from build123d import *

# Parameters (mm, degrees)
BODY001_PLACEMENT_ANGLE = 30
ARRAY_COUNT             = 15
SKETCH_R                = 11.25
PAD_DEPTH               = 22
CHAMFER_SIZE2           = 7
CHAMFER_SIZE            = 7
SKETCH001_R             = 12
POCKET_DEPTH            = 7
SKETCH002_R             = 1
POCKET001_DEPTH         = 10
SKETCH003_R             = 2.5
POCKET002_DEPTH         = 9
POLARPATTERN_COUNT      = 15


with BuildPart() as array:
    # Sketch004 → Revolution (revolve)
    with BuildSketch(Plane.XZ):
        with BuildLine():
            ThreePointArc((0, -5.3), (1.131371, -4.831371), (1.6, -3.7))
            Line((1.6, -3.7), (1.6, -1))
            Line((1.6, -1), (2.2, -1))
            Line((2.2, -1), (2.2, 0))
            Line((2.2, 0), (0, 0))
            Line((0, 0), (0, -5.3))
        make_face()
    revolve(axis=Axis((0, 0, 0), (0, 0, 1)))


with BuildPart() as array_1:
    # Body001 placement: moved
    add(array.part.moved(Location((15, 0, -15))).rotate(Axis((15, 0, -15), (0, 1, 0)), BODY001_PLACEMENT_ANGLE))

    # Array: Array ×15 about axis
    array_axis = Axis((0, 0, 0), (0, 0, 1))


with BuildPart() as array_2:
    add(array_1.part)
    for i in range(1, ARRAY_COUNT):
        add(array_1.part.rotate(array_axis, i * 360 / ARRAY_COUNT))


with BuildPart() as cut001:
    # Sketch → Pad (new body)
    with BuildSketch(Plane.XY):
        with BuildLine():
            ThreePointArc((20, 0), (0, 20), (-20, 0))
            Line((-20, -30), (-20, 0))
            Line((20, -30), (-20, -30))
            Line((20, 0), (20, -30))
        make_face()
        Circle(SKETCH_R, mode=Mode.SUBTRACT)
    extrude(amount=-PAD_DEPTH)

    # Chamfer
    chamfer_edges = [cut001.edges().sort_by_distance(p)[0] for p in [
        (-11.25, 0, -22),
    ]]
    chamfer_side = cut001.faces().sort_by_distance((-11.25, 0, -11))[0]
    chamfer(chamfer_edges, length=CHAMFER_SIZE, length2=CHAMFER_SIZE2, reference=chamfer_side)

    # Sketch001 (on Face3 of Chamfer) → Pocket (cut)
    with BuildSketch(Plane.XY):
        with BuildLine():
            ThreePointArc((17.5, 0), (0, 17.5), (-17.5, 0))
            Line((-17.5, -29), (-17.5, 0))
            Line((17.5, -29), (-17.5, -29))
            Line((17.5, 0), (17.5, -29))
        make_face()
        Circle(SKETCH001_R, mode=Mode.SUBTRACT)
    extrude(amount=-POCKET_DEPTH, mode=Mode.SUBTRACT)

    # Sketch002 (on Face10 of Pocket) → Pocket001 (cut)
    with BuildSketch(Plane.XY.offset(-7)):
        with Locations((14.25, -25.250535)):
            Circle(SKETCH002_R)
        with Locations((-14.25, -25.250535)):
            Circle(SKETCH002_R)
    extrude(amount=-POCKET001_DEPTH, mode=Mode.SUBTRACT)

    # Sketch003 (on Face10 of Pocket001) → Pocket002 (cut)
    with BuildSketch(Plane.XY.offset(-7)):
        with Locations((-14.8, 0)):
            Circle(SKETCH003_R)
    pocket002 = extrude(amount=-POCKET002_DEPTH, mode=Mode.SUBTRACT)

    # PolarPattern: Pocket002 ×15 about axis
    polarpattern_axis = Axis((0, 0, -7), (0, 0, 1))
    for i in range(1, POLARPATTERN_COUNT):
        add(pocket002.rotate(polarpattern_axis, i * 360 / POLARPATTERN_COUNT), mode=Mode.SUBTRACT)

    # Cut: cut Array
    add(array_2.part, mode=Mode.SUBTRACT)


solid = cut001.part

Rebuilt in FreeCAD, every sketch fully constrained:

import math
import FreeCAD as App
import Part
import Sketcher
Q = App.Units.Quantity


def edges_at(feature, points):
    """Names of the edges that pass closest to the given points."""
    edges = feature.Shape.Edges
    near = lambda p: min(range(len(edges)), key=lambda i: edges[i].distToShape(Part.Vertex(*p))[0])
    return sorted({f"Edge{near(p) + 1}" for p in points})

doc = App.newDocument("Part")
params = doc.addObject("Spreadsheet::Sheet", "Params")
for row, (alias, value) in enumerate([
    ("sketch1_radius", "1.599999 mm"),
    ("sketch1_height", "1 mm"),
    ("sketch1_width", "0.6 mm"),
    ("sketch1_height2", "2.7 mm"),
    ("revolution_angle", "360 deg"),
    ("sketch2_radius", "20 mm"),
    ("sketch2_diameter", "22.5 mm"),
    ("sketch2_height", "30 mm"),
    ("pad1_length", "22 mm"),
    ("chamfer_size", "7 mm"),
    ("chamfer_size2", "7 mm"),
    ("sketch3_diameter", "24 mm"),
    ("sketch3_radius", "17.5 mm"),
    ("sketch3_height", "29 mm"),
    ("pocket1_length", "7 mm"),
    ("sketch4_diameter", "2 mm"),
    ("pocket2_length", "10 mm"),
    ("sketch5_diameter", "5 mm"),
    ("pocket3_length", "9 mm"),
], start=1):
    params.set(f"A{row}", alias)
    params.set(f"B{row}", "=" + value)
    params.setAlias(f"B{row}", alias)

body = doc.addObject("PartDesign::Body", "Body")

# Sketch on XZ plane
sketch1 = body.newObject("Sketcher::SketchObject", "Sketch")
sketch1.AttachmentSupport = (doc.getObject("XZ_Plane"), [""])
sketch1.MapMode = "FlatFace"
sketch1.addGeometry([
    Part.ArcOfCircle(Part.Circle(App.Vector(0, -3.7, 0), App.Vector(0, 0, 1), 1.6), math.radians(-90), math.radians(0)),  # 0
    Part.LineSegment(App.Vector(1.6, -3.7, 0), App.Vector(1.6, -1, 0)),  # 1
    Part.LineSegment(App.Vector(1.6, -1, 0), App.Vector(2.2, -1, 0)),  # 2
    Part.LineSegment(App.Vector(2.2, -1, 0), App.Vector(2.2, 0, 0)),  # 3
    Part.LineSegment(App.Vector(2.2, 0, 0), App.Vector(0, 0, 0)),  # 4
    Part.LineSegment(App.Vector(0, 0, 0), App.Vector(0, -5.3, 0)),  # 5
], False)
sketch1.addConstraint([
    Sketcher.Constraint("Tangent", 0, 2, 1, 1),
    Sketcher.Constraint("Coincident", 1, 2, 2, 1),
    Sketcher.Constraint("Coincident", 2, 2, 3, 1),
    Sketcher.Constraint("Coincident", 3, 2, 4, 1),
    Sketcher.Constraint("Coincident", 4, 2, 5, 1),
    Sketcher.Constraint("Coincident", 5, 2, 0, 1),
    Sketcher.Constraint("Vertical", 1),
    Sketcher.Constraint("Horizontal", 2),
    Sketcher.Constraint("Vertical", 3),
    Sketcher.Constraint("Horizontal", 4),
    Sketcher.Constraint("Vertical", 5),
    Sketcher.Constraint("Coincident", 4, 2, -1, 1),
    Sketcher.Constraint("PointOnObject", 0, 3, -2),
    Sketcher.Constraint("Radius", 0, Q("1.599999 mm")),
    Sketcher.Constraint("DistanceY", 3, 1, 3, 2, Q("1 mm")),
    Sketcher.Constraint("DistanceX", 2, 1, 2, 2, Q("0.6 mm")),
    Sketcher.Constraint("DistanceY", 1, 1, 1, 2, Q("2.7 mm")),
])
sketch1.setExpression("Constraints[13]", "Params.sketch1_radius")
sketch1.setExpression("Constraints[14]", "Params.sketch1_height")
sketch1.setExpression("Constraints[15]", "Params.sketch1_width")
sketch1.setExpression("Constraints[16]", "Params.sketch1_height2")
revolution = body.newObject("PartDesign::Revolution", "Revolution")
revolution.Profile = sketch1
revolution.ReferenceAxis = (sketch1, ["V_Axis"])
revolution.setExpression("Angle", "Params.revolution_angle")
body2 = doc.addObject("PartDesign::Body", "Body001")
doc.recompute()

body.Placement = App.Placement(App.Vector(15, 0, -15), App.Rotation(App.Vector(0, 1, 0), 30))
boolean = body2.newObject("PartDesign::Boolean", "Boolean")
boolean.Type = "Fuse"
boolean.addObjects([body])
body3 = doc.addObject("PartDesign::Body", "Body002")
body3.AllowCompound = True
doc.recompute()

body3.BaseFeature = body2
doc.recompute()

body4 = doc.addObject("PartDesign::Body", "Body003")
body4.BaseFeature = body2
body4.Placement = App.Placement(App.Vector(0, 0, 0), App.Rotation(App.Vector(0, 0, 1), 24))
boolean2 = body3.newObject("PartDesign::Boolean", "Boolean001")
boolean2.Type = "Fuse"
boolean2.addObjects([body4])
doc.recompute()

body5 = doc.addObject("PartDesign::Body", "Body004")
body5.BaseFeature = body2
body5.Placement = App.Placement(App.Vector(0, 0, 0), App.Rotation(App.Vector(0, 0, 1), 48))
boolean3 = body3.newObject("PartDesign::Boolean", "Boolean002")
boolean3.Type = "Fuse"
boolean3.addObjects([body5])
doc.recompute()

body6 = doc.addObject("PartDesign::Body", "Body005")
body6.BaseFeature = body2
body6.Placement = App.Placement(App.Vector(0, 0, 0), App.Rotation(App.Vector(0, 0, 1), 72))
boolean4 = body3.newObject("PartDesign::Boolean", "Boolean003")
boolean4.Type = "Fuse"
boolean4.addObjects([body6])
doc.recompute()

body7 = doc.addObject("PartDesign::Body", "Body006")
body7.BaseFeature = body2
body7.Placement = App.Placement(App.Vector(0, 0, 0), App.Rotation(App.Vector(0, 0, 1), 96))
boolean5 = body3.newObject("PartDesign::Boolean", "Boolean004")
boolean5.Type = "Fuse"
boolean5.addObjects([body7])
doc.recompute()

body8 = doc.addObject("PartDesign::Body", "Body007")
body8.BaseFeature = body2
body8.Placement = App.Placement(App.Vector(0, 0, 0), App.Rotation(App.Vector(0, 0, 1), 120))
boolean6 = body3.newObject("PartDesign::Boolean", "Boolean005")
boolean6.Type = "Fuse"
boolean6.addObjects([body8])
doc.recompute()

body9 = doc.addObject("PartDesign::Body", "Body008")
body9.BaseFeature = body2
body9.Placement = App.Placement(App.Vector(0, 0, 0), App.Rotation(App.Vector(0, 0, 1), 144))
boolean7 = body3.newObject("PartDesign::Boolean", "Boolean006")
boolean7.Type = "Fuse"
boolean7.addObjects([body9])
doc.recompute()

body10 = doc.addObject("PartDesign::Body", "Body009")
body10.BaseFeature = body2
body10.Placement = App.Placement(App.Vector(0, 0, 0), App.Rotation(App.Vector(0, 0, 1), 168))
boolean8 = body3.newObject("PartDesign::Boolean", "Boolean007")
boolean8.Type = "Fuse"
boolean8.addObjects([body10])
doc.recompute()

body11 = doc.addObject("PartDesign::Body", "Body010")
body11.BaseFeature = body2
body11.Placement = App.Placement(App.Vector(0, 0, 0), App.Rotation(App.Vector(0, 0, 1), 192))
boolean9 = body3.newObject("PartDesign::Boolean", "Boolean008")
boolean9.Type = "Fuse"
boolean9.addObjects([body11])
doc.recompute()

body12 = doc.addObject("PartDesign::Body", "Body011")
body12.BaseFeature = body2
body12.Placement = App.Placement(App.Vector(0, 0, 0), App.Rotation(App.Vector(0, 0, 1), 216))
boolean10 = body3.newObject("PartDesign::Boolean", "Boolean009")
boolean10.Type = "Fuse"
boolean10.addObjects([body12])
doc.recompute()

body13 = doc.addObject("PartDesign::Body", "Body012")
body13.BaseFeature = body2
body13.Placement = App.Placement(App.Vector(0, 0, 0), App.Rotation(App.Vector(0, 0, 1), 240))
boolean11 = body3.newObject("PartDesign::Boolean", "Boolean010")
boolean11.Type = "Fuse"
boolean11.addObjects([body13])
doc.recompute()

body14 = doc.addObject("PartDesign::Body", "Body013")
body14.BaseFeature = body2
body14.Placement = App.Placement(App.Vector(0, 0, 0), App.Rotation(App.Vector(0, 0, 1), 264))
boolean12 = body3.newObject("PartDesign::Boolean", "Boolean011")
boolean12.Type = "Fuse"
boolean12.addObjects([body14])
doc.recompute()

body15 = doc.addObject("PartDesign::Body", "Body014")
body15.BaseFeature = body2
body15.Placement = App.Placement(App.Vector(0, 0, 0), App.Rotation(App.Vector(0, 0, 1), 288))
boolean13 = body3.newObject("PartDesign::Boolean", "Boolean012")
boolean13.Type = "Fuse"
boolean13.addObjects([body15])
doc.recompute()

body16 = doc.addObject("PartDesign::Body", "Body015")
body16.BaseFeature = body2
body16.Placement = App.Placement(App.Vector(0, 0, 0), App.Rotation(App.Vector(0, 0, 1), 312))
boolean14 = body3.newObject("PartDesign::Boolean", "Boolean013")
boolean14.Type = "Fuse"
boolean14.addObjects([body16])
doc.recompute()

body2.Placement = App.Placement(App.Vector(0, 0, 0), App.Rotation(App.Vector(0, 0, 1), 336))
boolean15 = body3.newObject("PartDesign::Boolean", "Boolean014")
boolean15.Type = "Fuse"
boolean15.addObjects([body2])
body17 = doc.addObject("PartDesign::Body", "Body016")

# Sketch on XY plane
sketch2 = body17.newObject("Sketcher::SketchObject", "Sketch001")
sketch2.AttachmentSupport = (doc.getObject("XY_Plane016"), [""])
sketch2.MapMode = "FlatFace"
sketch2.addGeometry([
    Part.ArcOfCircle(Part.Circle(App.Vector(0, 0, 0), App.Vector(0, 0, 1), 20), math.radians(0), math.radians(180)),  # 0
    Part.LineSegment(App.Vector(-20, 0, 0), App.Vector(-20, -30, 0)),  # 1
    Part.LineSegment(App.Vector(-20, -30, 0), App.Vector(20, -30, 0)),  # 2
    Part.LineSegment(App.Vector(20, -30, 0), App.Vector(20, 0, 0)),  # 3
    Part.Circle(App.Vector(0, 0, 0), App.Vector(0, 0, 1), 11),  # 4
], False)
sketch2.addConstraint([
    Sketcher.Constraint("Tangent", 0, 2, 1, 1),
    Sketcher.Constraint("Coincident", 1, 2, 2, 1),
    Sketcher.Constraint("Coincident", 2, 2, 3, 1),
    Sketcher.Constraint("Tangent", 3, 2, 0, 1),
    Sketcher.Constraint("Vertical", 1),
    Sketcher.Constraint("Horizontal", 2),
    Sketcher.Constraint("Vertical", 3),
    Sketcher.Constraint("Coincident", 0, 3, -1, 1),
    Sketcher.Constraint("Coincident", 4, 3, -1, 1),
    Sketcher.Constraint("Radius", 0, Q("20 mm")),
    Sketcher.Constraint("Diameter", 4, Q("22.5 mm")),
    Sketcher.Constraint("DistanceY", 1, 2, 1, 1, Q("30 mm")),
])
sketch2.setExpression("Constraints[9]", "Params.sketch2_radius")
sketch2.setExpression("Constraints[10]", "Params.sketch2_diameter")
sketch2.setExpression("Constraints[11]", "Params.sketch2_height")
pad1 = body17.newObject("PartDesign::Pad", "Pad")
pad1.Profile = sketch2
pad1.setExpression("Length", "Params.pad1_length")
pad1.Reversed = True
doc.recompute()

chamfer = body17.newObject("PartDesign::Chamfer", "Chamfer")
chamfer.Base = (pad1, edges_at(pad1, [(-11.25, 0, -22)]))
chamfer.ChamferType = "Two distances"
chamfer.setExpression("Size", "Params.chamfer_size")
chamfer.setExpression("Size2", "Params.chamfer_size2")

# Sketch on XY plane
sketch3 = body17.newObject("Sketcher::SketchObject", "Sketch002")
sketch3.AttachmentSupport = (doc.getObject("XY_Plane016"), [""])
sketch3.MapMode = "FlatFace"
sketch3.addGeometry([
    Part.ArcOfCircle(Part.Circle(App.Vector(0, 0, 0), App.Vector(0, 0, 1), 18), math.radians(0), math.radians(180)),  # 0
    Part.LineSegment(App.Vector(-18, 0, 0), App.Vector(-18, -29, 0)),  # 1
    Part.LineSegment(App.Vector(-18, -29, 0), App.Vector(18, -29, 0)),  # 2
    Part.LineSegment(App.Vector(18, -29, 0), App.Vector(18, 0, 0)),  # 3
    Part.Circle(App.Vector(0, 0, 0), App.Vector(0, 0, 1), 12),  # 4
], False)
sketch3.addConstraint([
    Sketcher.Constraint("Tangent", 0, 2, 1, 1),
    Sketcher.Constraint("Coincident", 1, 2, 2, 1),
    Sketcher.Constraint("Coincident", 2, 2, 3, 1),
    Sketcher.Constraint("Tangent", 3, 2, 0, 1),
    Sketcher.Constraint("Vertical", 1),
    Sketcher.Constraint("Horizontal", 2),
    Sketcher.Constraint("Vertical", 3),
    Sketcher.Constraint("Coincident", 0, 3, -1, 1),
    Sketcher.Constraint("Coincident", 4, 3, -1, 1),
    Sketcher.Constraint("Diameter", 4, Q("24 mm")),
    Sketcher.Constraint("Radius", 0, Q("17.5 mm")),
    Sketcher.Constraint("DistanceY", 1, 2, 1, 1, Q("29 mm")),
])
sketch3.setExpression("Constraints[9]", "Params.sketch3_diameter")
sketch3.setExpression("Constraints[10]", "Params.sketch3_radius")
sketch3.setExpression("Constraints[11]", "Params.sketch3_height")
pocket1 = body17.newObject("PartDesign::Pocket", "Pocket")
pocket1.Profile = sketch3
pocket1.setExpression("Length", "Params.pocket1_length")

# Sketch on XY plane
sketch4 = body17.newObject("Sketcher::SketchObject", "Sketch003")
sketch4.AttachmentSupport = (doc.getObject("XY_Plane016"), [""])
sketch4.MapMode = "FlatFace"
sketch4.AttachmentOffset = App.Placement(App.Vector(0, 0, -7), App.Rotation())
sketch4.addGeometry([
    Part.Circle(App.Vector(14.2, -25.3, 0), App.Vector(0, 0, 1), 1),
    Part.Circle(App.Vector(-14.2, -25.3, 0), App.Vector(0, 0, 1), 1),
], False)
sketch4.addConstraint([
    Sketcher.Constraint("Equal", 0, 1),
    Sketcher.Constraint("Symmetric", 0, 3, 1, 3, -2),
    Sketcher.Constraint("Diameter", 0, Q("2 mm")),
    Sketcher.Constraint("DistanceX", 1, 3, 0, 3, Q("28.5 mm")),
    Sketcher.Constraint("DistanceY", 0, 3, -1, 1, Q("25.250535 mm")),
])
sketch4.setExpression("Constraints[2]", "Params.sketch4_diameter")
pocket2 = body17.newObject("PartDesign::Pocket", "Pocket001")
pocket2.Profile = sketch4
pocket2.setExpression("Length", "Params.pocket2_length")

# Sketch on XY plane
sketch5 = body17.newObject("Sketcher::SketchObject", "Sketch004")
sketch5.AttachmentSupport = (doc.getObject("XY_Plane016"), [""])
sketch5.MapMode = "FlatFace"
sketch5.AttachmentOffset = App.Placement(App.Vector(0, 0, -7), App.Rotation())
sketch5.addGeometry(Part.Circle(App.Vector(-14.8, 0, 0), App.Vector(0, 0, 1), 2.5), False)
sketch5.addConstraint([
    Sketcher.Constraint("PointOnObject", 0, 3, -1),
    Sketcher.Constraint("Diameter", 0, Q("5 mm")),
    Sketcher.Constraint("DistanceX", 0, 3, -1, 1, Q("14.8 mm")),
])
sketch5.setExpression("Constraints[1]", "Params.sketch5_diameter")
pocket3 = body17.newObject("PartDesign::Pocket", "Pocket002")
pocket3.Profile = sketch5
pocket3.setExpression("Length", "Params.pocket3_length")
doc.recompute()

polarpattern = body17.newObject("PartDesign::PolarPattern", "PolarPattern")
polarpattern.Originals = [pocket3]
polarpattern.Axis = (doc.getObject("Z_Axis016"), [""])
polarpattern.Angle = 360
polarpattern.Occurrences = 15
body17.Tip = polarpattern
doc.recompute()

boolean16 = body17.newObject("PartDesign::Boolean", "Boolean015")
boolean16.Type = "Cut"
boolean16.addObjects([body3])

doc.recompute()
